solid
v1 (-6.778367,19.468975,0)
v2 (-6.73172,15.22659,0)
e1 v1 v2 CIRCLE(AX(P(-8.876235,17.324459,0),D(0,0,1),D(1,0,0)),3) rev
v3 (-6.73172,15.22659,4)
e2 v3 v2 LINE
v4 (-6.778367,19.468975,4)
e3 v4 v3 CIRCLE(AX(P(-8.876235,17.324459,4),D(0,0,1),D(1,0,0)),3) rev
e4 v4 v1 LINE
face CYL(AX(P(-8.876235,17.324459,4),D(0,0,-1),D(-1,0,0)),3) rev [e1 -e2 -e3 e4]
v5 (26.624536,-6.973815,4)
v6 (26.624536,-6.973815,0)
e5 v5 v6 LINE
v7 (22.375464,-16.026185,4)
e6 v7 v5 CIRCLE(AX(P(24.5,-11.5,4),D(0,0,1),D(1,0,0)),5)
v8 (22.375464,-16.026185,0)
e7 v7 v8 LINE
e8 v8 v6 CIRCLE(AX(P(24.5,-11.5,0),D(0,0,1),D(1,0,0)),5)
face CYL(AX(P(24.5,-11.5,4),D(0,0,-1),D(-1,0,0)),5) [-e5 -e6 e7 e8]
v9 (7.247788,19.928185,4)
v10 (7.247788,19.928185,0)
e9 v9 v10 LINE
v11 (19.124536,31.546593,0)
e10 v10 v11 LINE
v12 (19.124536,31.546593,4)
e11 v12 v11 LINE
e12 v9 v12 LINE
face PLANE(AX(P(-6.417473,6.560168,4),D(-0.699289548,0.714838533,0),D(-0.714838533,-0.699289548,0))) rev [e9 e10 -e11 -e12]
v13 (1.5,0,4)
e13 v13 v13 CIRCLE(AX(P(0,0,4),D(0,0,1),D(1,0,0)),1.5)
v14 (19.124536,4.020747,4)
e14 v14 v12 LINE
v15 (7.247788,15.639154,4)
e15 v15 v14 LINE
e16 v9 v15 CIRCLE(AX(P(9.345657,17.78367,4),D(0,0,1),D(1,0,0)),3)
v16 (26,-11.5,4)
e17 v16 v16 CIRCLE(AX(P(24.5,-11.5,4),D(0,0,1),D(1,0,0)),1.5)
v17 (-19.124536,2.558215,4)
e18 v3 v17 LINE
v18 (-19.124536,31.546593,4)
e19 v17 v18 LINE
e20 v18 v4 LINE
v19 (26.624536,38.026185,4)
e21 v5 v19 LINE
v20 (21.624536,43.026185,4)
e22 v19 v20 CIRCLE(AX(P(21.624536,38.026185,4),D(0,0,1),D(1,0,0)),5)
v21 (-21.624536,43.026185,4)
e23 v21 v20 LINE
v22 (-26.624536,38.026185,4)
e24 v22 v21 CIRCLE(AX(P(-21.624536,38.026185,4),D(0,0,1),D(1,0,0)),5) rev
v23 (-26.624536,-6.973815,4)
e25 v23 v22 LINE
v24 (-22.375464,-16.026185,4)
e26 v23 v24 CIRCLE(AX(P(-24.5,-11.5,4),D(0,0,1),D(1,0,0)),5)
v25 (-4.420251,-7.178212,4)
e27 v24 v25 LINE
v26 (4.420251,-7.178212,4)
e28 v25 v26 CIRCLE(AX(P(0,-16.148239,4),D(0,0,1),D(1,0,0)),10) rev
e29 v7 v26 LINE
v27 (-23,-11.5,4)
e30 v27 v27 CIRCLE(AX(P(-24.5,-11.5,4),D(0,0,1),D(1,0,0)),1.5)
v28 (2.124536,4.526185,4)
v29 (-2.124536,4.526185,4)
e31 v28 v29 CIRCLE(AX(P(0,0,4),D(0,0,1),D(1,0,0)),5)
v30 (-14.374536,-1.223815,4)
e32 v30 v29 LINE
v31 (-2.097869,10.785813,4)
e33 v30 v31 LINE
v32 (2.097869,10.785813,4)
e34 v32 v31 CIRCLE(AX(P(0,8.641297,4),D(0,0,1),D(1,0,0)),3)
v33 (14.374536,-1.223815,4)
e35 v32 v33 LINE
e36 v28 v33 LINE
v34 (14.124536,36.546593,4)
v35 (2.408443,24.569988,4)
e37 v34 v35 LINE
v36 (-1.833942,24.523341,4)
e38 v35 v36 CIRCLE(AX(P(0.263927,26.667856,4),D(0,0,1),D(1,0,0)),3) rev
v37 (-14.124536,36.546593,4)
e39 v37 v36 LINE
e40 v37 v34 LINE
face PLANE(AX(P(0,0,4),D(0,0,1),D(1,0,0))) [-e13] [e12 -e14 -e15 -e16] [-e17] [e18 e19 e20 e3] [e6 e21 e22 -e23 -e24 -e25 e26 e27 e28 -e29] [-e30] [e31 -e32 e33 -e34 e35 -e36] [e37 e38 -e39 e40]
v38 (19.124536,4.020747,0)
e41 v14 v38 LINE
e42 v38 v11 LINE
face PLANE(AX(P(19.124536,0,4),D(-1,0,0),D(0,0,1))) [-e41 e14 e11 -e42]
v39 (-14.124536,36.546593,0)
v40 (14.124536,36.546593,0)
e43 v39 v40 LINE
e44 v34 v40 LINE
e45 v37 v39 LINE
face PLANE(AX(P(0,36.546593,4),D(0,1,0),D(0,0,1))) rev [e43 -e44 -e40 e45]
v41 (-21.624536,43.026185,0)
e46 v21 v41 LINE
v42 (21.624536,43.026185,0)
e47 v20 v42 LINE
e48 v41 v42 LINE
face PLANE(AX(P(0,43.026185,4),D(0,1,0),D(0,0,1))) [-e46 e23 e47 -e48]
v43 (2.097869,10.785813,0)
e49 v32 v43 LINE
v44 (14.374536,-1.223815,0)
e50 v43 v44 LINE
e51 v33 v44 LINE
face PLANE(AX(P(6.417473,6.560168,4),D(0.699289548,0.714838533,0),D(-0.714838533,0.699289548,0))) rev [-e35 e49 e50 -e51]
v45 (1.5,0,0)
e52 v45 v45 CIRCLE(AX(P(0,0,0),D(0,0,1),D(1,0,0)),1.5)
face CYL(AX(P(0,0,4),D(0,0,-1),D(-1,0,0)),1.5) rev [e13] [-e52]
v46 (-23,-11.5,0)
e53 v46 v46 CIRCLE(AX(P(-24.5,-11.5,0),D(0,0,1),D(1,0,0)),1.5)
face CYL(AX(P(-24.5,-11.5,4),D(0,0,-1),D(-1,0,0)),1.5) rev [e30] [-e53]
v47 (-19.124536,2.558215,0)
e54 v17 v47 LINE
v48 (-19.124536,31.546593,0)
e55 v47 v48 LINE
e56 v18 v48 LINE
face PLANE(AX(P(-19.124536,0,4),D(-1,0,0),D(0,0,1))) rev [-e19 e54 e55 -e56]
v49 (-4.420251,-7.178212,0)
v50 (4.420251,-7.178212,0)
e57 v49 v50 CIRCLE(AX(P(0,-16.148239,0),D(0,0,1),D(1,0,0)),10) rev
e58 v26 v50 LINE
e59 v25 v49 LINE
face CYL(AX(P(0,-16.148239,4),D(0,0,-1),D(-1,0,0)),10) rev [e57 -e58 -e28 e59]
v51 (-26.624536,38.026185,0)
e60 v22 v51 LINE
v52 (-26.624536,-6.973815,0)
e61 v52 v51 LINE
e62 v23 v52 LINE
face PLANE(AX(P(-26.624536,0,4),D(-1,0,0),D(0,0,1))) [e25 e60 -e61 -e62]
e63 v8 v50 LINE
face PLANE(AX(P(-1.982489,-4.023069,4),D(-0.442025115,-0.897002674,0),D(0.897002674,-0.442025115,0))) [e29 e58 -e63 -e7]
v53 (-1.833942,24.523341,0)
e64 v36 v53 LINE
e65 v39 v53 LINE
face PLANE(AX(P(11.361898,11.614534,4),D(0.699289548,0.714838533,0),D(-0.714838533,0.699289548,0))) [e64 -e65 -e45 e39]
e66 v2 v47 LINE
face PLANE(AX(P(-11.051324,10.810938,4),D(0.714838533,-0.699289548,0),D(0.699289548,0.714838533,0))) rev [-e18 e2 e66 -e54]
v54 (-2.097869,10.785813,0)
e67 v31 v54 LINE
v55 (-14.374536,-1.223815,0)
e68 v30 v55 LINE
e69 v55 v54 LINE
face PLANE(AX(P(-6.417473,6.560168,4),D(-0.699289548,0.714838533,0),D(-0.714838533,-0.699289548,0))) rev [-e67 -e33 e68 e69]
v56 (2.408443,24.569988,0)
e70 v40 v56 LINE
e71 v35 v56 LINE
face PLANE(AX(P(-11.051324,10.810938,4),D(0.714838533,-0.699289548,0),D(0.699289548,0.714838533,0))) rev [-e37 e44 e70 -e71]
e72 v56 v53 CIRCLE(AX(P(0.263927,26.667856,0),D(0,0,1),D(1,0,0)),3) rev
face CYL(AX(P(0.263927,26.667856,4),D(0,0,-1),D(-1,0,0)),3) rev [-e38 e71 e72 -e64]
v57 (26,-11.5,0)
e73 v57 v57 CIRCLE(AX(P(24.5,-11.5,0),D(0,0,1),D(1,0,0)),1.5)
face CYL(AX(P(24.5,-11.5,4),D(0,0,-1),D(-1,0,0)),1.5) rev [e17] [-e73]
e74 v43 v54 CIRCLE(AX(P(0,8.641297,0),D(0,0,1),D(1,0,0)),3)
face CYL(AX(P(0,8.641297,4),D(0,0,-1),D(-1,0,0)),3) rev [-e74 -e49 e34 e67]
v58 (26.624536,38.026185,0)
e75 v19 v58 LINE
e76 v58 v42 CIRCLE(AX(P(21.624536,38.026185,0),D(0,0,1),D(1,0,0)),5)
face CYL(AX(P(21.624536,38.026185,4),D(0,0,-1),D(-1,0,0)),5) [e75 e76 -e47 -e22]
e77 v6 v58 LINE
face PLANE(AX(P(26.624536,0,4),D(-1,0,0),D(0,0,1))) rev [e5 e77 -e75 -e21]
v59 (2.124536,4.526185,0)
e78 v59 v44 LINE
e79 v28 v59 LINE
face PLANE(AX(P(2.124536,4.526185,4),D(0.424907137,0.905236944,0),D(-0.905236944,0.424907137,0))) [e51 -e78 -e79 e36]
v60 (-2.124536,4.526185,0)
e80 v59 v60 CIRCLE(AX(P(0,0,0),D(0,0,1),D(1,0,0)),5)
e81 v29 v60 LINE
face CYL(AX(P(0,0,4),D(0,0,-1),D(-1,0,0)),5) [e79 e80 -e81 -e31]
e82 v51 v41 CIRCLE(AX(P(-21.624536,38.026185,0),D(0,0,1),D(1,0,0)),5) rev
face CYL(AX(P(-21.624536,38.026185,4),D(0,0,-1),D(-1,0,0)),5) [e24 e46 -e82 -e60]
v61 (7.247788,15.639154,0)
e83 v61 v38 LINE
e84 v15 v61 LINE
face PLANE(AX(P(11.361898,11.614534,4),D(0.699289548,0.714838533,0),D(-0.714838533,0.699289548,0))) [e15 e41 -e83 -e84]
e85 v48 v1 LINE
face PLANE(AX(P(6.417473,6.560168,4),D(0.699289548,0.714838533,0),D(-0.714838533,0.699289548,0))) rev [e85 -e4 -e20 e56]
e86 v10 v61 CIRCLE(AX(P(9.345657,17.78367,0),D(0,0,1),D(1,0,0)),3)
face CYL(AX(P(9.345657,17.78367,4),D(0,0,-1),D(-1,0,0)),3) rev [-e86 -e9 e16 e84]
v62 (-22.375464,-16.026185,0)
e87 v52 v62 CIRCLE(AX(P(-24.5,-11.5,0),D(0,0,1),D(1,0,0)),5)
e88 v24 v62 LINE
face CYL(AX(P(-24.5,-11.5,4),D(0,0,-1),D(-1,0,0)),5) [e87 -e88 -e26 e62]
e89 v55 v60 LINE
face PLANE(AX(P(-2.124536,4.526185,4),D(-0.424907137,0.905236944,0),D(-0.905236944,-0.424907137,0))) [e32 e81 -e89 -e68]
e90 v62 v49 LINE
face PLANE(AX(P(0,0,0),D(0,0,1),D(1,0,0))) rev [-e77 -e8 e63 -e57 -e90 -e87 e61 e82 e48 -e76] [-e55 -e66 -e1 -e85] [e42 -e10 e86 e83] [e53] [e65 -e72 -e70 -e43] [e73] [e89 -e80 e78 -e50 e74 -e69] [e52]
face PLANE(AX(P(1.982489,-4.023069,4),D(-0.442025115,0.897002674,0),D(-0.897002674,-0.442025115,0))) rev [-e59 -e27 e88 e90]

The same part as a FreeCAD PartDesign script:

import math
import FreeCAD as App
import Part
import Sketcher

doc = App.newDocument("Part")
body = doc.addObject("PartDesign::Body", "Body")

# Sketch on XY plane
sketch1 = doc.addObject("Sketcher::SketchObject", "Sketch")
body.addObject(sketch1)
sketch1.AttachmentSupport = (doc.XY_Plane, [""])
sketch1.MapMode = "FlatFace"
sketch1.addGeometry([
    Part.ArcOfCircle(Part.Circle(App.Vector(-24.5, -11.5, 0), App.Vector(0, 0, 1), 5), math.radians(115), math.radians(295)),  # 0
    Part.LineSegment(App.Vector(-22.38, -16.03, 0), App.Vector(-22.21, -15.94, 0)),  # 1
    Part.LineSegment(App.Vector(-22.21, -15.94, 0), App.Vector(-4.42, -7.18, 0)),  # 2
    Part.ArcOfCircle(Part.Circle(App.Vector(0, -16.15, 0), App.Vector(0, 0, 1), 10), math.radians(64), math.radians(116)),  # 3
    Part.LineSegment(App.Vector(4.42, -7.18, 0), App.Vector(22.21, -15.94, 0)),  # 4
    Part.LineSegment(App.Vector(22.21, -15.94, 0), App.Vector(22.38, -16.03, 0)),  # 5
    Part.ArcOfCircle(Part.Circle(App.Vector(24.5, -11.5, 0), App.Vector(0, 0, 1), 5), math.radians(-115), math.radians(65)),  # 6
    Part.LineSegment(App.Vector(26.62, -6.97, 0), App.Vector(26.62, 38.03, 0)),  # 7
    Part.ArcOfCircle(Part.Circle(App.Vector(21.62, 38.03, 0), App.Vector(0, 0, 1), 5), math.radians(0), math.radians(90)),  # 8
    Part.LineSegment(App.Vector(21.62, 43.03, 0), App.Vector(-21.62, 43.03, 0)),  # 9
    Part.ArcOfCircle(Part.Circle(App.Vector(-21.62, 38.03, 0), App.Vector(0, 0, 1), 5), math.radians(90), math.radians(180)),  # 10
    Part.LineSegment(App.Vector(-26.62, 38.03, 0), App.Vector(-26.62, -6.97, 0)),  # 11
    Part.Circle(App.Vector(-24.5, -11.5, 0), App.Vector(0, 0, 1), 1.5),  # 12
    Part.Circle(App.Vector(24.5, -11.5, 0), App.Vector(0, 0, 1), 1.5),  # 13
    Part.Circle(App.Vector(0, 0, 0), App.Vector(0, 0, 1), 1.5),  # 14
    Part.LineSegment(App.Vector(2.1, 10.79, 0), App.Vector(14.37, -1.22, 0)),  # 15
    Part.LineSegment(App.Vector(14.37, -1.22, 0), App.Vector(2.12, 4.53, 0)),  # 16
    Part.ArcOfCircle(Part.Circle(App.Vector(0, 0, 0), App.Vector(0, 0, 1), 5), math.radians(65), math.radians(115)),  # 17
    Part.LineSegment(App.Vector(-2.12, 4.53, 0), App.Vector(-14.37, -1.22, 0)),  # 18
    Part.LineSegment(App.Vector(-14.37, -1.22, 0), App.Vector(-2.1, 10.79, 0)),  # 19
    Part.ArcOfCircle(Part.Circle(App.Vector(0, 8.64, 0), App.Vector(0, 0, 1), 3), math.radians(46), math.radians(134)),  # 20
    Part.ArcOfCircle(Part.Circle(App.Vector(-8.88, 17.32, 0), App.Vector(0, 0, 1), 3), math.radians(-44), math.radians(46)),  # 21
    Part.LineSegment(App.Vector(-6.73, 15.23, 0), App.Vector(-19.12, 2.56, 0)),  # 22
    Part.LineSegment(App.Vector(-19.12, 2.56, 0), App.Vector(-19.12, 31.55, 0)),  # 23
    Part.LineSegment(App.Vector(-19.12, 31.55, 0), App.Vector(-6.78, 19.47, 0)),  # 24
    Part.LineSegment(App.Vector(7.25, 19.93, 0), App.Vector(19.12, 31.55, 0)),  # 25
    Part.LineSegment(App.Vector(19.12, 31.55, 0), App.Vector(19.12, 4.02, 0)),  # 26
    Part.LineSegment(App.Vector(19.12, 4.02, 0), App.Vector(7.25, 15.64, 0)),  # 27
    Part.ArcOfCircle(Part.Circle(App.Vector(9.35, 17.78, 0), App.Vector(0, 0, 1), 3), math.radians(134), math.radians(226)),  # 28
    Part.ArcOfCircle(Part.Circle(App.Vector(0.26, 26.67, 0), App.Vector(0, 0, 1), 3), math.radians(-134), math.radians(-44)),  # 29
    Part.LineSegment(App.Vector(-1.83, 24.52, 0), App.Vector(-14.12, 36.55, 0)),  # 30
    Part.LineSegment(App.Vector(-14.12, 36.55, 0), App.Vector(14.12, 36.55, 0)),  # 31
    Part.LineSegment(App.Vector(14.12, 36.55, 0), App.Vector(2.41, 24.57, 0)),  # 32
], False)
sketch1.addConstraint([
    Sketcher.Constraint("Coincident", 0, 2, 1, 1),
    Sketcher.Constraint("Coincident", 1, 2, 2, 1),
    Sketcher.Constraint("Tangent", 2, 2, 3, 2),
    Sketcher.Constraint("Tangent", 3, 1, 4, 1),
    Sketcher.Constraint("Coincident", 4, 2, 5, 1),
    Sketcher.Constraint("Coincident", 5, 2, 6, 1),
    Sketcher.Constraint("Coincident", 6, 2, 7, 1),
    Sketcher.Constraint("Tangent", 7, 2, 8, 1),
    Sketcher.Constraint("Tangent", 8, 2, 9, 1),
    Sketcher.Constraint("Tangent", 9, 2, 10, 1),
    Sketcher.Constraint("Tangent", 10, 2, 11, 1),
    Sketcher.Constraint("Coincident", 11, 2, 0, 1),
    Sketcher.Constraint("Coincident", 15, 2, 16, 1),
    Sketcher.Constraint("Tangent", 16, 2, 17, 1),
    Sketcher.Constraint("Tangent", 17, 2, 18, 1),
    Sketcher.Constraint("Coincident", 18, 2, 19, 1),
    Sketcher.Constraint("Tangent", 19, 2, 20, 2),
    Sketcher.Constraint("Tangent", 20, 1, 15, 1),
    Sketcher.Constraint("Tangent", 21, 1, 22, 1),
    Sketcher.Constraint("Coincident", 22, 2, 23, 1),
    Sketcher.Constraint("Coincident", 23, 2, 24, 1),
    Sketcher.Constraint("Tangent", 24, 2, 21, 2),
    Sketcher.Constraint("Coincident", 25, 2, 26, 1),
    Sketcher.Constraint("Coincident", 26, 2, 27, 1),
    Sketcher.Constraint("Tangent", 27, 2, 28, 2),
    Sketcher.Constraint("Tangent", 28, 1, 25, 1),
    Sketcher.Constraint("Tangent", 29, 1, 30, 1),
    Sketcher.Constraint("Coincident", 30, 2, 31, 1),
    Sketcher.Constraint("Coincident", 31, 2, 32, 1),
    Sketcher.Constraint("Tangent", 32, 2, 29, 2),
    Sketcher.Constraint("Vertical", 7),
    Sketcher.Constraint("Horizontal", 9),
    Sketcher.Constraint("Vertical", 11),
    Sketcher.Constraint("Vertical", 23),
    Sketcher.Constraint("Vertical", 26),
    Sketcher.Constraint("Horizontal", 31),
    Sketcher.Constraint("Coincident", 14, 3, -1, 1),
    Sketcher.Constraint("Coincident", 17, 3, -1, 1),
    Sketcher.Constraint("Coincident", 12, 3, 0, 3),
    Sketcher.Constraint("Coincident", 13, 3, 6, 3),
    Sketcher.Constraint("Equal", 0, 6),
    Sketcher.Constraint("Equal", 6, 8),
    Sketcher.Constraint("Equal", 8, 10),
    Sketcher.Constraint("Equal", 12, 13),
    Sketcher.Constraint("Equal", 13, 14),
    Sketcher.Constraint("Equal", 10, 17),
    Sketcher.Constraint("Equal", 20, 21),
    Sketcher.Constraint("Equal", 21, 28),
    Sketcher.Constraint("Equal", 28, 29),
    Sketcher.Constraint("Symmetric", 0, 3, 6, 3, -2),
    Sketcher.Constraint("Symmetric", 2, 2, 3, 1, -2),
    Sketcher.Constraint("Symmetric", 15, 2, 18, 2, -2),
    Sketcher.Constraint("Symmetric", 23, 2, 25, 2, -2),
    Sketcher.Constraint("PointOnObject", 20, 3, -2),
    Sketcher.Constraint("Parallel", 1, 2),
    Sketcher.Constraint("Parallel", 4, 5),
    Sketcher.Constraint("Perpendicular", 15, 22),
    Sketcher.Constraint("Perpendicular", 22, 24),
    Sketcher.Constraint("Parallel", 19, 25),
    Sketcher.Constraint("Parallel", 24, 27),
    Sketcher.Constraint("Parallel", 27, 30),
    Sketcher.Constraint("Perpendicular", 30, 32),
    Sketcher.Constraint("Horizontal", 1, 2, 4, 2),
    Sketcher.Constraint("Horizontal", 6, 2, 11, 2),
    Sketcher.Constraint("Diameter", 12, 3.0),
    Sketcher.Constraint("Radius", 0, 5.0),
    Sketcher.Constraint("Radius", 3, 10.0),
    Sketcher.Constraint("Radius", 20, 3.0),
    Sketcher.Constraint("DistanceY", 7, 1, 7, 2, 45.0),
    Sketcher.Constraint("DistanceX", 0, 3, 6, 3, 49.0),
    Sketcher.Constraint("DistanceX", 22, 2, 17, 2, 17.0),
    Sketcher.Constraint("DistanceX", 23, 2, 30, 2, 5.0),
    Sketcher.Constraint("DistanceY", 23, 2, 30, 2, 5.0),
    Sketcher.Constraint("DistanceX", 31, 2, 25, 2, 5.0),
    Sketcher.Constraint("DistanceY", 0, 3, -1, 1, 11.5),
    Sketcher.Constraint("DistanceX", 11, 2, 22, 2, 7.5),
    Sketcher.Constraint("DistanceX", 15, 2, 6, 2, 12.25),
    Sketcher.Constraint("DistanceY", 6, 2, 15, 2, 5.75),
    Sketcher.Constraint("DistanceX", 10, 3, 21, 3, 12.7483),
    Sketcher.Constraint("Distance", 22, 17.722009),
    Sketcher.Constraint("DistanceY", 26, 2, 26, 1, 27.525846),
    Sketcher.Constraint("DistanceY", 3, 3, -1, 1, 16.148239),
    Sketcher.Constraint("DistanceY", -1, 1, 21, 3, 17.324459),
    Sketcher.Constraint("DistanceX", 2, 2, -1, 1, 4.420251),
    Sketcher.Constraint("DistanceY", 0, 2, 1, 2, 0.083961),
])
pad1 = doc.addObject("PartDesign::Pad", "Pad")
body.addObject(pad1)
pad1.Profile = sketch1
pad1.Length = 4

doc.recompute()
